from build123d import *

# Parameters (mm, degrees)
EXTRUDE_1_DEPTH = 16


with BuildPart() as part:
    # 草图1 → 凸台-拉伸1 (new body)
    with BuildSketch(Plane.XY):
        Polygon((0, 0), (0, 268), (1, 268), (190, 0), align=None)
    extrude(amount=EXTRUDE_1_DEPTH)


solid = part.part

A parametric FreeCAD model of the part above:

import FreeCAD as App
import Part
import Sketcher


def add_polygon(sketch, points):
    """Adds a closed chain of lines whose ends are joined by coincident constraints."""
    first, n = sketch.GeometryCount, len(points)
    for a, b in zip(points, points[1:] + points[:1]):
        sketch.addGeometry(Part.LineSegment(App.Vector(*a, 0), App.Vector(*b, 0)), False)
    for i in range(n):
        sketch.addConstraint(Sketcher.Constraint("Coincident", first + i, 2, first + (i + 1) % n, 1))

doc = App.newDocument("Part")
body = doc.addObject("PartDesign::Body", "Body")

# Sketch on XY plane
sketch1 = body.newObject("Sketcher::SketchObject", "Sketch")
sketch1.AttachmentSupport = (doc.getObject("XY_Plane"), [""])
sketch1.MapMode = "FlatFace"
add_polygon(sketch1, [(0, 268), (0, 0), (190, 0), (1, 268)])  # lines 0-3
sketch1.addConstraint([
    Sketcher.Constraint("Vertical", 0),
    Sketcher.Constraint("Horizontal", 1),
    Sketcher.Constraint("Horizontal", 3),
    Sketcher.Constraint("Coincident", 0, 2, -1, 1),
    Sketcher.Constraint("DistanceX", 1, 1, 1, 2, 190.0),
    Sketcher.Constraint("DistanceX", 3, 2, 3, 1, 1.0),
    Sketcher.Constraint("DistanceY", 0, 2, 0, 1, 268.0),
])
pad1 = body.newObject("PartDesign::Pad", "Pad")
pad1.Profile = sketch1
pad1.Length = 16

doc.recompute()
